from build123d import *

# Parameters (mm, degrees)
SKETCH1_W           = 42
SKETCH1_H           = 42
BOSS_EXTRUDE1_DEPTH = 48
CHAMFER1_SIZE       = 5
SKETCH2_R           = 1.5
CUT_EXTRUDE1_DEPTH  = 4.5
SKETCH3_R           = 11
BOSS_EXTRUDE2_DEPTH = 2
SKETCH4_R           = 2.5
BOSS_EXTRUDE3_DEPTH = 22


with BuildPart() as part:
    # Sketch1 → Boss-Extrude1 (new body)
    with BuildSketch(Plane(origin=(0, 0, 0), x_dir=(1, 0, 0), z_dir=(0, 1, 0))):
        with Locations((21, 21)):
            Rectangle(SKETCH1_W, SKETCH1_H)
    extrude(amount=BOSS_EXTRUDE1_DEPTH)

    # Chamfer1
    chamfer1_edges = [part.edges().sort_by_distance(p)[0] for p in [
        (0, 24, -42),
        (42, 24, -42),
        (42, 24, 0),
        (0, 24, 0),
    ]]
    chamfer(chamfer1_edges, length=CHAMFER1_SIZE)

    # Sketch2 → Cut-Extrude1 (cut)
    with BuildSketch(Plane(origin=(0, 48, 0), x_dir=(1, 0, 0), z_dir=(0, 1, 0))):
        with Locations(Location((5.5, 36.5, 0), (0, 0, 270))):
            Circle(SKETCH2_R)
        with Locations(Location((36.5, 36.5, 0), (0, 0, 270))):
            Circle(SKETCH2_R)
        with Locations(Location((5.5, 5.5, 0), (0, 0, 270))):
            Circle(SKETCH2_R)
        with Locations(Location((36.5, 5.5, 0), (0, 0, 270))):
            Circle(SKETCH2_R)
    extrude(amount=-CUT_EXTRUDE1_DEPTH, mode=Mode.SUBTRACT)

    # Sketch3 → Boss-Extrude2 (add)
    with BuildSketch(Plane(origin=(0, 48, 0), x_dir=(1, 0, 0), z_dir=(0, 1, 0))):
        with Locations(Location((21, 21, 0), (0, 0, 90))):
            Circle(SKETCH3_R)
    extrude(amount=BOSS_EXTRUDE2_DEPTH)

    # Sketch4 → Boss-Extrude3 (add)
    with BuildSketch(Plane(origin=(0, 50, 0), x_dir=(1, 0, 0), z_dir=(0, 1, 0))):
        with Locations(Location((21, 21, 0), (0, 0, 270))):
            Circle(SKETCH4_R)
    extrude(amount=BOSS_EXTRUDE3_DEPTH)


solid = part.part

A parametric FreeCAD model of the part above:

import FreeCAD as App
import Part
import Sketcher

V = App.Vector
Q = App.Units.Quantity


def edges_at(feature, points):
    """Names of the edges that pass closest to the given points."""
    edges = feature.Shape.Edges
    near = lambda p: min(range(len(edges)), key=lambda i: edges[i].distToShape(Part.Vertex(*p))[0])
    return sorted({f"Edge{near(p) + 1}" for p in points})

doc = App.newDocument("Part")
body = doc.addObject("PartDesign::Body", "Body")

sketch1 = doc.addObject("Sketcher::SketchObject", "Sketch")
body.addObject(sketch1)
sketch1.AttachmentSupport = (doc.XZ_Plane, [""])
sketch1.MapMode = "FlatFace"
sketch1.addGeometry([
    Part.LineSegment(V(0, -42, 0), V(0, 0, 0)),
    Part.LineSegment(V(0, 0, 0), V(42, 0, 0)),
    Part.LineSegment(V(42, 0, 0), V(42, -42, 0)),
    Part.LineSegment(V(42, -42, 0), V(0, -42, 0)),
], False)
sketch1.addConstraint([
    Sketcher.Constraint("Coincident", 0, 2, 1, 1),
    Sketcher.Constraint("Coincident", 1, 2, 2, 1),
    Sketcher.Constraint("Coincident", 2, 2, 3, 1),
    Sketcher.Constraint("Coincident", 3, 2, 0, 1),
    Sketcher.Constraint("Vertical", 0),
    Sketcher.Constraint("Horizontal", 1),
    Sketcher.Constraint("Vertical", 2),
    Sketcher.Constraint("Horizontal", 3),
    Sketcher.Constraint("Coincident", 0, 2, -1, 1),
    Sketcher.Constraint("Equal", 3, 0),
    Sketcher.Constraint("DistanceX", 1, 1, 1, 2, Q("42 mm")),
])
pad1 = doc.addObject("PartDesign::Pad", "Pad")
body.addObject(pad1)
pad1.Profile = sketch1
pad1.Length = 48
pad1.Reversed = True
doc.recompute()

chamfer = doc.addObject("PartDesign::Chamfer", "Chamfer")
body.addObject(chamfer)
chamfer.Base = (pad1, edges_at(pad1, [
    (0, 24, -42),
    (42, 24, -42),
    (42, 24, 0),
    (0, 24, 0),
]))
chamfer.Size = 5

sketch2 = doc.addObject("Sketcher::SketchObject", "Sketch001")
body.addObject(sketch2)
sketch2.AttachmentSupport = (doc.XZ_Plane, [""])
sketch2.MapMode = "FlatFace"
sketch2.AttachmentOffset = App.Placement(V(0, 0, -48), App.Rotation())
sketch2.addGeometry([
    Part.Circle(V(5.5, -36.5, 0), V(0, 0, 1), 1.5),
    Part.Circle(V(36.5, -36.5, 0), V(0, 0, 1), 1.5),
    Part.Circle(V(5.5, -5.5, 0), V(0, 0, 1), 1.5),
    Part.Circle(V(36.5, -5.5, 0), V(0, 0, 1), 1.5),
], False)
sketch2.addConstraint([
    Sketcher.Constraint("Equal", 0, 1),
    Sketcher.Constraint("Equal", 1, 2),
    Sketcher.Constraint("Equal", 2, 3),
    Sketcher.Constraint("Horizontal", 0, 3, 1, 3),
    Sketcher.Constraint("Horizontal", 2, 3, 3, 3),
    Sketcher.Constraint("Vertical", 0, 3, 2, 3),
    Sketcher.Constraint("Vertical", 1, 3, 3, 3),
    Sketcher.Constraint("Diameter", 0, Q("3 mm")),
    Sketcher.Constraint("DistanceX", 0, 3, 1, 3, Q("31 mm")),
    Sketcher.Constraint("DistanceY", 0, 3, 2, 3, Q("31 mm")),
    Sketcher.Constraint("DistanceX", -1, 1, 0, 3, Q("5.5 mm")),
    Sketcher.Constraint("DistanceY", 0, 3, -1, 1, Q("36.5 mm")),
])
pocket1 = doc.addObject("PartDesign::Pocket", "Pocket")
body.addObject(pocket1)
pocket1.Profile = sketch2
pocket1.Length = 4.5
pocket1.Reversed = True

sketch3 = doc.addObject("Sketcher::SketchObject", "Sketch002")
body.addObject(sketch3)
sketch3.AttachmentSupport = (doc.XZ_Plane, [""])
sketch3.MapMode = "FlatFace"
sketch3.AttachmentOffset = App.Placement(V(0, 0, -48), App.Rotation())
sketch3.addGeometry(Part.Circle(V(21, -21, 0), V(0, 0, 1), 11), False)
sketch3.addConstraint([
    Sketcher.Constraint("Diameter", 0, Q("22 mm")),
    Sketcher.Constraint("DistanceX", -1, 1, 0, 3, Q("21 mm")),
    Sketcher.Constraint("DistanceY", 0, 3, -1, 1, Q("21 mm")),
])
pad2 = doc.addObject("PartDesign::Pad", "Pad001")
body.addObject(pad2)
pad2.Profile = sketch3
pad2.Length = 2
pad2.Reversed = True

sketch4 = doc.addObject("Sketcher::SketchObject", "Sketch003")
body.addObject(sketch4)
sketch4.AttachmentSupport = (doc.XZ_Plane, [""])
sketch4.MapMode = "FlatFace"
sketch4.AttachmentOffset = App.Placement(V(0, 0, -50), App.Rotation())
sketch4.addGeometry(Part.Circle(V(21, -21, 0), V(0, 0, 1), 2.5), False)
sketch4.addConstraint([
    Sketcher.Constraint("Diameter", 0, Q("5 mm")),
    Sketcher.Constraint("DistanceX", -1, 1, 0, 3, Q("21 mm")),
    Sketcher.Constraint("DistanceY", 0, 3, -1, 1, Q("21 mm")),
])
pad3 = doc.addObject("PartDesign::Pad", "Pad002")
body.addObject(pad3)
pad3.Profile = sketch4
pad3.Length = 22
pad3.Reversed = True

doc.recompute()
